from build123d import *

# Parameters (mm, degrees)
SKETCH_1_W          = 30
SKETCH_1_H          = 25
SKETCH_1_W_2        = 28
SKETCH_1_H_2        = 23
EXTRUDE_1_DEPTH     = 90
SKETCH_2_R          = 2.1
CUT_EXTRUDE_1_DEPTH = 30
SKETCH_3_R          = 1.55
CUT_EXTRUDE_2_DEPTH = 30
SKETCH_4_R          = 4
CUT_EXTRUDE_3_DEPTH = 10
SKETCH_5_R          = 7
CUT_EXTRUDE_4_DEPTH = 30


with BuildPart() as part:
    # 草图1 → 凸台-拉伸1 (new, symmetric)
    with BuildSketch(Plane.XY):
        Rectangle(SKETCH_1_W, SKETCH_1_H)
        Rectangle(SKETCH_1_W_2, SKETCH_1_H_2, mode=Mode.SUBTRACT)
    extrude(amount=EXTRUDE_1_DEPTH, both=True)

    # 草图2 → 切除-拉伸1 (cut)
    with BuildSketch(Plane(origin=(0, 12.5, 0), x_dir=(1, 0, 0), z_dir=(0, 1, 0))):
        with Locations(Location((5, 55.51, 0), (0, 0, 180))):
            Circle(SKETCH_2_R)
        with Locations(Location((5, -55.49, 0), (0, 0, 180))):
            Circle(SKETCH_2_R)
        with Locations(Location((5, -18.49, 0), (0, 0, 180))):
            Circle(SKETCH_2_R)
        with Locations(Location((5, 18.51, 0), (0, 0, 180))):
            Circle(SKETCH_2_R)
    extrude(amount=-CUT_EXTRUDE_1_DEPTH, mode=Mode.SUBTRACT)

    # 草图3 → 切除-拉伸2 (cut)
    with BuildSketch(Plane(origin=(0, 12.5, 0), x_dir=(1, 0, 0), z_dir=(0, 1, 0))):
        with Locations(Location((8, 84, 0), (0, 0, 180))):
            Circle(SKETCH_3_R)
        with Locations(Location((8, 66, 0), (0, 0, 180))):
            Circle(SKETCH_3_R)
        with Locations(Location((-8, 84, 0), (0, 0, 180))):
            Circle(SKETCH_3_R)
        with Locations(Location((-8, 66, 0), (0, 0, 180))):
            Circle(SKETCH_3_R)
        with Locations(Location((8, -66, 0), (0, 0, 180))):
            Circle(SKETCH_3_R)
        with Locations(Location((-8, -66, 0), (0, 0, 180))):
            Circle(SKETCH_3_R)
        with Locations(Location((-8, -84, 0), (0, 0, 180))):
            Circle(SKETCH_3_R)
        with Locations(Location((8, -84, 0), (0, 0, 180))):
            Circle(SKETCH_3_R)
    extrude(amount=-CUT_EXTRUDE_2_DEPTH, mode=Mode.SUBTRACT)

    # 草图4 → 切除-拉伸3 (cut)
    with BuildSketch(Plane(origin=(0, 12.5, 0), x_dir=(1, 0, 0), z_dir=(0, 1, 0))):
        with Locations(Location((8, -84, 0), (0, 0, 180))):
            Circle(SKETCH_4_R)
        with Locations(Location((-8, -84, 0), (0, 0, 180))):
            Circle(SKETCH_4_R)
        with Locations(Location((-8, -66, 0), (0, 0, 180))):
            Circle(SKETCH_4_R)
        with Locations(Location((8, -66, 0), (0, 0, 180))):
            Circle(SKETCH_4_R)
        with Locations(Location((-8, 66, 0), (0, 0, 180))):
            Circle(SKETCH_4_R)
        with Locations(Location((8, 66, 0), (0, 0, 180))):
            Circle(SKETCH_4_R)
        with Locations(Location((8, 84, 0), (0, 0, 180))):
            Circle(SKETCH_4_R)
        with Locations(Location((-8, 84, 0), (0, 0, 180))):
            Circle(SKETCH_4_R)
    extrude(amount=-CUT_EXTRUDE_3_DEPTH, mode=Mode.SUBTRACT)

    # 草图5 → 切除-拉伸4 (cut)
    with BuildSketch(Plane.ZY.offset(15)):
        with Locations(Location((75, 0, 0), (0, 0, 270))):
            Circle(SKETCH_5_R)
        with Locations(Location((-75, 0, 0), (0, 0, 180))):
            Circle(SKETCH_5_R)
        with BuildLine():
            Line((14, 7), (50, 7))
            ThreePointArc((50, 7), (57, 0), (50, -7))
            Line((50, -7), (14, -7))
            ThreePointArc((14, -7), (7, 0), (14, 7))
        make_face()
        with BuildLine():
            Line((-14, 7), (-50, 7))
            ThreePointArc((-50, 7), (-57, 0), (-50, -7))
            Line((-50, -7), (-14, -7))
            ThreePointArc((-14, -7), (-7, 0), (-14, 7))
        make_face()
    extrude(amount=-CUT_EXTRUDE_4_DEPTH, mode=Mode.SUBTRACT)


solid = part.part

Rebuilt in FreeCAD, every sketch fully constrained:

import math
import FreeCAD as App
import Part
import Sketcher
Q = App.Units.Quantity

doc = App.newDocument("Part")
body = doc.addObject("PartDesign::Body", "Body")

sketch1 = doc.addObject("Sketcher::SketchObject", "Sketch")
body.addObject(sketch1)
sketch1.AttachmentSupport = (doc.XY_Plane, [""])
sketch1.MapMode = "FlatFace"
sketch1.addGeometry(Part.LineSegment(App.Vector(-15, 12, 0), App.Vector(-15, -12, 0)), False)
sketch1.addGeometry(Part.LineSegment(App.Vector(-15, -12, 0), App.Vector(15, -12, 0)), False)
sketch1.addGeometry(Part.LineSegment(App.Vector(15, -12, 0), App.Vector(15, 12, 0)), False)
sketch1.addGeometry(Part.LineSegment(App.Vector(15, 12, 0), App.Vector(-15, 12, 0)), False)
sketch1.addGeometry(Part.LineSegment(App.Vector(14, -12, 0), App.Vector(-14, -12, 0)), False)
sketch1.addGeometry(Part.LineSegment(App.Vector(-14, -12, 0), App.Vector(-14, 12, 0)), False)
sketch1.addGeometry(Part.LineSegment(App.Vector(-14, 12, 0), App.Vector(14, 12, 0)), False)
sketch1.addGeometry(Part.LineSegment(App.Vector(14, 12, 0), App.Vector(14, -12, 0)), False)
sketch1.addConstraint(Sketcher.Constraint("Coincident", 0, 2, 1, 1))
sketch1.addConstraint(Sketcher.Constraint("Coincident", 1, 2, 2, 1))
sketch1.addConstraint(Sketcher.Constraint("Coincident", 2, 2, 3, 1))
sketch1.addConstraint(Sketcher.Constraint("Coincident", 3, 2, 0, 1))
sketch1.addConstraint(Sketcher.Constraint("Coincident", 4, 2, 5, 1))
sketch1.addConstraint(Sketcher.Constraint("Coincident", 5, 2, 6, 1))
sketch1.addConstraint(Sketcher.Constraint("Coincident", 6, 2, 7, 1))
sketch1.addConstraint(Sketcher.Constraint("Coincident", 7, 2, 4, 1))
sketch1.addConstraint(Sketcher.Constraint("Vertical", 0))
sketch1.addConstraint(Sketcher.Constraint("Horizontal", 1))
sketch1.addConstraint(Sketcher.Constraint("Vertical", 2))
sketch1.addConstraint(Sketcher.Constraint("Horizontal", 3))
sketch1.addConstraint(Sketcher.Constraint("Horizontal", 4))
sketch1.addConstraint(Sketcher.Constraint("Vertical", 5))
sketch1.addConstraint(Sketcher.Constraint("Horizontal", 6))
sketch1.addConstraint(Sketcher.Constraint("Vertical", 7))
sketch1.addConstraint(Sketcher.Constraint("Symmetric", 0, 2, 2, 2, -1, 1))
sketch1.addConstraint(Sketcher.Constraint("Symmetric", 4, 2, 6, 2, -1, 1))
sketch1.addConstraint(Sketcher.Constraint("DistanceX", 1, 1, 1, 2, Q("30 mm")))
sketch1.addConstraint(Sketcher.Constraint("DistanceX", 4, 2, 4, 1, Q("28 mm")))
sketch1.addConstraint(Sketcher.Constraint("DistanceY", 0, 2, 0, 1, Q("25 mm")))
sketch1.addConstraint(Sketcher.Constraint("DistanceY", 5, 1, 5, 2, Q("23 mm")))
pad1 = doc.addObject("PartDesign::Pad", "Pad")
body.addObject(pad1)
pad1.Profile = sketch1
pad1.Length = 180
pad1.Midplane = True

sketch2 = doc.addObject("Sketcher::SketchObject", "Sketch001")
body.addObject(sketch2)
sketch2.AttachmentSupport = (doc.XZ_Plane, [""])
sketch2.MapMode = "FlatFace"
sketch2.AttachmentOffset = App.Placement(App.Vector(0, 0, -12.5), App.Rotation())
sketch2.addGeometry(Part.Circle(App.Vector(5, -55.5, 0), App.Vector(0, 0, 1), 2.1), False)
sketch2.addGeometry(Part.Circle(App.Vector(5, 55.5, 0), App.Vector(0, 0, 1), 2.1), False)
sketch2.addGeometry(Part.Circle(App.Vector(5, 18.5, 0), App.Vector(0, 0, 1), 2.1), False)
sketch2.addGeometry(Part.Circle(App.Vector(5, -18.5, 0), App.Vector(0, 0, 1), 2.1), False)
sketch2.addConstraint(Sketcher.Constraint("Equal", 0, 1))
sketch2.addConstraint(Sketcher.Constraint("Equal", 1, 2))
sketch2.addConstraint(Sketcher.Constraint("Equal", 2, 3))
sketch2.addConstraint(Sketcher.Constraint("Vertical", 0, 3, 1, 3))
sketch2.addConstraint(Sketcher.Constraint("Vertical", 1, 3, 2, 3))
sketch2.addConstraint(Sketcher.Constraint("Vertical", 2, 3, 3, 3))
sketch2.addConstraint(Sketcher.Constraint("Diameter", 0, Q("4.2 mm")))
sketch2.addConstraint(Sketcher.Constraint("DistanceX", -1, 1, 0, 3, Q("5 mm")))
sketch2.addConstraint(Sketcher.Constraint("DistanceY", 0, 3, 1, 3, Q("111 mm")))
sketch2.addConstraint(Sketcher.Constraint("DistanceY", 2, 3, 1, 3, Q("37 mm")))
sketch2.addConstraint(Sketcher.Constraint("DistanceY", 0, 3, 3, 3, Q("37 mm")))
sketch2.addConstraint(Sketcher.Constraint("DistanceY", 0, 3, -1, 1, Q("55.51 mm")))
pocket1 = doc.addObject("PartDesign::Pocket", "Pocket")
body.addObject(pocket1)
pocket1.Profile = sketch2
pocket1.Length = 30
pocket1.Reversed = True

sketch3 = doc.addObject("Sketcher::SketchObject", "Sketch002")
body.addObject(sketch3)
sketch3.AttachmentSupport = (doc.XZ_Plane, [""])
sketch3.MapMode = "FlatFace"
sketch3.AttachmentOffset = App.Placement(App.Vector(0, 0, -12.5), App.Rotation())
sketch3.addGeometry(Part.Circle(App.Vector(8, -84, 0), App.Vector(0, 0, 1), 1.6), False)
sketch3.addGeometry(Part.Circle(App.Vector(8, -66, 0), App.Vector(0, 0, 1), 1.6), False)
sketch3.addGeometry(Part.Circle(App.Vector(-8, -84, 0), App.Vector(0, 0, 1), 1.6), False)
sketch3.addGeometry(Part.Circle(App.Vector(-8, -66, 0), App.Vector(0, 0, 1), 1.6), False)
sketch3.addGeometry(Part.Circle(App.Vector(8, 66, 0), App.Vector(0, 0, 1), 1.6), False)
sketch3.addGeometry(Part.Circle(App.Vector(-8, 66, 0), App.Vector(0, 0, 1), 1.6), False)
sketch3.addGeometry(Part.Circle(App.Vector(-8, 84, 0), App.Vector(0, 0, 1), 1.6), False)
sketch3.addGeometry(Part.Circle(App.Vector(8, 84, 0), App.Vector(0, 0, 1), 1.6), False)
sketch3.addConstraint(Sketcher.Constraint("Equal", 0, 1))
sketch3.addConstraint(Sketcher.Constraint("Equal", 1, 2))
sketch3.addConstraint(Sketcher.Constraint("Equal", 2, 3))
sketch3.addConstraint(Sketcher.Constraint("Equal", 3, 4))
sketch3.addConstraint(Sketcher.Constraint("Equal", 4, 5))
sketch3.addConstraint(Sketcher.Constraint("Equal", 5, 6))
sketch3.addConstraint(Sketcher.Constraint("Equal", 6, 7))
sketch3.addConstraint(Sketcher.Constraint("Symmetric", 3, 3, 4, 3, -1, 1))
sketch3.addConstraint(Sketcher.Constraint("Symmetric", 1, 3, 5, 3, -1, 1))
sketch3.addConstraint(Sketcher.Constraint("Symmetric", 0, 3, 6, 3, -1, 1))
sketch3.addConstraint(Sketcher.Constraint("Symmetric", 2, 3, 7, 3, -1, 1))
sketch3.addConstraint(Sketcher.Constraint("Symmetric", 0, 3, 2, 3, -2))
sketch3.addConstraint(Sketcher.Constraint("Symmetric", 1, 3, 3, 3, -2))
sketch3.addConstraint(Sketcher.Constraint("Vertical", 0, 3, 1, 3))
sketch3.addConstraint(Sketcher.Constraint("Diameter", 0, Q("3.1 mm")))
sketch3.addConstraint(Sketcher.Constraint("DistanceX", -1, 1, 0, 3, Q("8 mm")))
sketch3.addConstraint(Sketcher.Constraint("DistanceY", 0, 3, -1, 1, Q("84 mm")))
sketch3.addConstraint(Sketcher.Constraint("DistanceY", 1, 3, -1, 1, Q("66 mm")))
pocket2 = doc.addObject("PartDesign::Pocket", "Pocket001")
body.addObject(pocket2)
pocket2.Profile = sketch3
pocket2.Length = 30
pocket2.Reversed = True

sketch4 = doc.addObject("Sketcher::SketchObject", "Sketch003")
body.addObject(sketch4)
sketch4.AttachmentSupport = (doc.XZ_Plane, [""])
sketch4.MapMode = "FlatFace"
sketch4.AttachmentOffset = App.Placement(App.Vector(0, 0, -12.5), App.Rotation())
sketch4.addGeometry(Part.Circle(App.Vector(8, 84, 0), App.Vector(0, 0, 1), 4), False)
sketch4.addGeometry(Part.Circle(App.Vector(-8, 84, 0), App.Vector(0, 0, 1), 4), False)
sketch4.addGeometry(Part.Circle(App.Vector(-8, 66, 0), App.Vector(0, 0, 1), 4), False)
sketch4.addGeometry(Part.Circle(App.Vector(8, 66, 0), App.Vector(0, 0, 1), 4), False)
sketch4.addGeometry(Part.Circle(App.Vector(-8, -66, 0), App.Vector(0, 0, 1), 4), False)
sketch4.addGeometry(Part.Circle(App.Vector(8, -66, 0), App.Vector(0, 0, 1), 4), False)
sketch4.addGeometry(Part.Circle(App.Vector(8, -84, 0), App.Vector(0, 0, 1), 4), False)
sketch4.addGeometry(Part.Circle(App.Vector(-8, -84, 0), App.Vector(0, 0, 1), 4), False)
sketch4.addConstraint(Sketcher.Constraint("Equal", 0, 1))
sketch4.addConstraint(Sketcher.Constraint("Equal", 1, 2))
sketch4.addConstraint(Sketcher.Constraint("Equal", 2, 3))
sketch4.addConstraint(Sketcher.Constraint("Equal", 3, 4))
sketch4.addConstraint(Sketcher.Constraint("Equal", 4, 5))
sketch4.addConstraint(Sketcher.Constraint("Equal", 5, 6))
sketch4.addConstraint(Sketcher.Constraint("Equal", 6, 7))
sketch4.addConstraint(Sketcher.Constraint("Symmetric", 3, 3, 4, 3, -1, 1))
sketch4.addConstraint(Sketcher.Constraint("Symmetric", 2, 3, 5, 3, -1, 1))
sketch4.addConstraint(Sketcher.Constraint("Symmetric", 1, 3, 6, 3, -1, 1))
sketch4.addConstraint(Sketcher.Constraint("Symmetric", 0, 3, 7, 3, -1, 1))
sketch4.addConstraint(Sketcher.Constraint("Symmetric", 0, 3, 1, 3, -2))
sketch4.addConstraint(Sketcher.Constraint("Symmetric", 2, 3, 3, 3, -2))
sketch4.addConstraint(Sketcher.Constraint("Vertical", 1, 3, 2, 3))
sketch4.addConstraint(Sketcher.Constraint("Diameter", 0, Q("8 mm")))
sketch4.addConstraint(Sketcher.Constraint("DistanceX", -1, 1, 0, 3, Q("8 mm")))
sketch4.addConstraint(Sketcher.Constraint("DistanceY", -1, 1, 0, 3, Q("84 mm")))
sketch4.addConstraint(Sketcher.Constraint("DistanceY", -1, 1, 2, 3, Q("66 mm")))
pocket3 = doc.addObject("PartDesign::Pocket", "Pocket002")
body.addObject(pocket3)
pocket3.Profile = sketch4
pocket3.Length = 10
pocket3.Reversed = True

sketch5 = doc.addObject("Sketcher::SketchObject", "Sketch004")
body.addObject(sketch5)
sketch5.AttachmentSupport = (doc.YZ_Plane, [""])
sketch5.MapMode = "FlatFace"
sketch5.AttachmentOffset = App.Placement(App.Vector(0, 0, -15), App.Rotation())
sketch5.addGeometry(Part.Circle(App.Vector(0, 75, 0), App.Vector(0, 0, 1), 7), False)
sketch5.addGeometry(Part.Circle(App.Vector(0, -75, 0), App.Vector(0, 0, 1), 7), False)
sketch5.addGeometry(Part.LineSegment(App.Vector(7, 50, 0), App.Vector(7, 14, 0)), False)
sketch5.addGeometry(Part.ArcOfCircle(Part.Circle(App.Vector(0, 14, 0), App.Vector(0, 0, 1), 7), math.radians(180), math.radians(360)), False)
sketch5.addGeometry(Part.LineSegment(App.Vector(-7, 14, 0), App.Vector(-7, 50, 0)), False)
sketch5.addGeometry(Part.ArcOfCircle(Part.Circle(App.Vector(0, 50, 0), App.Vector(0, 0, 1), 7), math.radians(0), math.radians(180)), False)
sketch5.addGeometry(Part.LineSegment(App.Vector(7, -14, 0), App.Vector(7, -50, 0)), False)
sketch5.addGeometry(Part.ArcOfCircle(Part.Circle(App.Vector(0, -50, 0), App.Vector(0, 0, 1), 7), math.radians(180), math.radians(360)), False)
sketch5.addGeometry(Part.LineSegment(App.Vector(-7, -50, 0), App.Vector(-7, -14, 0)), False)
sketch5.addGeometry(Part.ArcOfCircle(Part.Circle(App.Vector(0, -14, 0), App.Vector(0, 0, 1), 7), math.radians(0), math.radians(180)), False)
sketch5.addConstraint(Sketcher.Constraint("Tangent", 2, 2, 3, 2))
sketch5.addConstraint(Sketcher.Constraint("Tangent", 3, 1, 4, 1))
sketch5.addConstraint(Sketcher.Constraint("Tangent", 4, 2, 5, 2))
sketch5.addConstraint(Sketcher.Constraint("Tangent", 5, 1, 2, 1))
sketch5.addConstraint(Sketcher.Constraint("Tangent", 6, 2, 7, 2))
sketch5.addConstraint(Sketcher.Constraint("Tangent", 7, 1, 8, 1))
sketch5.addConstraint(Sketcher.Constraint("Tangent", 8, 2, 9, 2))
sketch5.addConstraint(Sketcher.Constraint("Tangent", 9, 1, 6, 1))
sketch5.addConstraint(Sketcher.Constraint("Vertical", 2))
sketch5.addConstraint(Sketcher.Constraint("Vertical", 4))
sketch5.addConstraint(Sketcher.Constraint("Vertical", 6))
sketch5.addConstraint(Sketcher.Constraint("Vertical", 8))
sketch5.addConstraint(Sketcher.Constraint("Equal", 0, 1))
sketch5.addConstraint(Sketcher.Constraint("Equal", 1, 3))
sketch5.addConstraint(Sketcher.Constraint("Equal", 5, 7))
sketch5.addConstraint(Sketcher.Constraint("Symmetric", 0, 3, 1, 3, -1, 1))
sketch5.addConstraint(Sketcher.Constraint("Symmetric", 5, 3, 7, 3, -1, 1))
sketch5.addConstraint(Sketcher.Constraint("Symmetric", 3, 3, 9, 3, -1))
sketch5.addConstraint(Sketcher.Constraint("PointOnObject", 0, 3, -2))
sketch5.addConstraint(Sketcher.Constraint("Diameter", 0, Q("14 mm")))
sketch5.addConstraint(Sketcher.Constraint("DistanceY", 2, 2, 2, 1, Q("36 mm")))
sketch5.addConstraint(Sketcher.Constraint("DistanceY", -1, 1, 0, 3, Q("75 mm")))
sketch5.addConstraint(Sketcher.Constraint("DistanceY", -1, 1, 3, 3, Q("14 mm")))
pocket4 = doc.addObject("PartDesign::Pocket", "Pocket003")
body.addObject(pocket4)
pocket4.Profile = sketch5
pocket4.Length = 30
pocket4.Reversed = True

doc.recompute()
